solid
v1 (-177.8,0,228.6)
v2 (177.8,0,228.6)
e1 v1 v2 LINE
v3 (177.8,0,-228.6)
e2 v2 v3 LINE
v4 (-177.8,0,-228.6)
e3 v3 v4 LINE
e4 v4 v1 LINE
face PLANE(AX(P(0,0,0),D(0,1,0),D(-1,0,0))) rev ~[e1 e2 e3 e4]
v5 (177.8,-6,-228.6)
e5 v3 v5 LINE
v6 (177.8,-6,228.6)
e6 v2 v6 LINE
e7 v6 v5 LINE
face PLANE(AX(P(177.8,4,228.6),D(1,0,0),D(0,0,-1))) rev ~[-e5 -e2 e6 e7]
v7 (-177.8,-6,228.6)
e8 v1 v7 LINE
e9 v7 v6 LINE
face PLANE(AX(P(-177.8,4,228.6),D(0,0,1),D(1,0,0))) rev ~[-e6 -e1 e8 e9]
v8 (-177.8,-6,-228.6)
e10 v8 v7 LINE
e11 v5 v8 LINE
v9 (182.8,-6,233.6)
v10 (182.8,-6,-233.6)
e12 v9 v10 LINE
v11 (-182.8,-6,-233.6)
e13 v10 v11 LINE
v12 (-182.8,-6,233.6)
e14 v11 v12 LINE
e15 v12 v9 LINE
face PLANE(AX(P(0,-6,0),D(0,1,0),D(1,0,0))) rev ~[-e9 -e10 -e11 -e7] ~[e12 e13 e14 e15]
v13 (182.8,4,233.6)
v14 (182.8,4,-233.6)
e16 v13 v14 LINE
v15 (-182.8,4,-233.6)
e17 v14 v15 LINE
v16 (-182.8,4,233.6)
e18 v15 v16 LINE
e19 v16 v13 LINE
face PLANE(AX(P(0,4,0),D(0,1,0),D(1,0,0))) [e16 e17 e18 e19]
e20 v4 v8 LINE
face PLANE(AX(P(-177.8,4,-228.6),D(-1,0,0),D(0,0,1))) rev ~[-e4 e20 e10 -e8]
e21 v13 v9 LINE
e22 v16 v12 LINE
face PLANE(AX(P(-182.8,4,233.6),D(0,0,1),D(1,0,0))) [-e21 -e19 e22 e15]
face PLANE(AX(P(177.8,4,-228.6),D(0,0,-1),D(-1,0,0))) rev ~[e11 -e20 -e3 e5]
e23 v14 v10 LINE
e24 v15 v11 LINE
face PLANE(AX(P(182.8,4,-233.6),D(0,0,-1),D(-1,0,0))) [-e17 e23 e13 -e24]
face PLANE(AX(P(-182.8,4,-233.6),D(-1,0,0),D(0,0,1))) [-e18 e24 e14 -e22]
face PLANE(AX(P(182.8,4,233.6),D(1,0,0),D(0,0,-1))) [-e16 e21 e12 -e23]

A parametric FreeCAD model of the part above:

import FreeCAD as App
import Part
import Sketcher
Q = App.Units.Quantity


def add_polygon(sketch, points):
    """Adds a closed chain of lines whose ends are joined by coincident constraints."""
    first, n = sketch.GeometryCount, len(points)
    for a, b in zip(points, points[1:] + points[:1]):
        sketch.addGeometry(Part.LineSegment(App.Vector(*a, 0), App.Vector(*b, 0)), False)
    for i in range(n):
        sketch.addConstraint(Sketcher.Constraint("Coincident", first + i, 2, first + (i + 1) % n, 1))

doc = App.newDocument("Part")
body = doc.addObject("PartDesign::Body", "Body")

# Sketch on XZ plane
sketch1 = body.newObject("Sketcher::SketchObject", "Sketch")
sketch1.AttachmentSupport = (doc.getObject("XZ_Plane"), [""])
sketch1.MapMode = "FlatFace"
add_polygon(sketch1, [(-178, -229), (-178, 229), (178, 229), (178, -229)])  # lines 0-3
sketch1.addConstraint(Sketcher.Constraint("Vertical", 0))
sketch1.addConstraint(Sketcher.Constraint("Horizontal", 1))
sketch1.addConstraint(Sketcher.Constraint("Vertical", 2))
sketch1.addConstraint(Sketcher.Constraint("Horizontal", 3))
sketch1.addConstraint(Sketcher.Constraint("Symmetric", 0, 2, 2, 2, -1, 1))
sketch1.addConstraint(Sketcher.Constraint("DistanceX", 1, 1, 1, 2, Q("14 in")))
sketch1.addConstraint(Sketcher.Constraint("DistanceY", 0, 1, 0, 2, Q("18 in")))
pad1 = body.newObject("PartDesign::Pad", "Pad")
pad1.Profile = sketch1
pad1.Length = 4
pad1.Reversed = True

# Sketch on XZ plane
sketch2 = body.newObject("Sketcher::SketchObject", "Sketch001")
sketch2.AttachmentSupport = (doc.getObject("XZ_Plane"), [""])
sketch2.MapMode = "FlatFace"
sketch2.AttachmentOffset = App.Placement(App.Vector(0, 0, -4), App.Rotation())
add_polygon(sketch2, [(-183, -234), (-183, 234), (183, 234), (183, -234)])  # lines 0-3
add_polygon(sketch2, [(-178, 229), (-178, -229), (178, -229), (178, 229)])  # lines 4-7
sketch2.addConstraint(Sketcher.Constraint("Vertical", 0))
sketch2.addConstraint(Sketcher.Constraint("Horizontal", 1))
sketch2.addConstraint(Sketcher.Constraint("Vertical", 2))
sketch2.addConstraint(Sketcher.Constraint("Horizontal", 3))
sketch2.addConstraint(Sketcher.Constraint("Vertical", 4))
sketch2.addConstraint(Sketcher.Constraint("Horizontal", 5))
sketch2.addConstraint(Sketcher.Constraint("Vertical", 6))
sketch2.addConstraint(Sketcher.Constraint("Horizontal", 7))
sketch2.addConstraint(Sketcher.Constraint("Symmetric", 0, 2, 2, 2, -1, 1))
sketch2.addConstraint(Sketcher.Constraint("Symmetric", 4, 2, 6, 2, -1, 1))
sketch2.addConstraint(Sketcher.Constraint("DistanceX", 5, 1, 5, 2, Q("14 in")))
sketch2.addConstraint(Sketcher.Constraint("DistanceY", 4, 2, 4, 1, Q("18 in")))
sketch2.addConstraint(Sketcher.Constraint("DistanceX", 3, 2, 4, 2, 5.0))
sketch2.addConstraint(Sketcher.Constraint("DistanceY", 3, 2, 4, 2, 5.0))
pad2 = body.newObject("PartDesign::Pad", "Pad001")
pad2.Profile = sketch2
pad2.Length = Q("0.3937008 in")

doc.recompute()
